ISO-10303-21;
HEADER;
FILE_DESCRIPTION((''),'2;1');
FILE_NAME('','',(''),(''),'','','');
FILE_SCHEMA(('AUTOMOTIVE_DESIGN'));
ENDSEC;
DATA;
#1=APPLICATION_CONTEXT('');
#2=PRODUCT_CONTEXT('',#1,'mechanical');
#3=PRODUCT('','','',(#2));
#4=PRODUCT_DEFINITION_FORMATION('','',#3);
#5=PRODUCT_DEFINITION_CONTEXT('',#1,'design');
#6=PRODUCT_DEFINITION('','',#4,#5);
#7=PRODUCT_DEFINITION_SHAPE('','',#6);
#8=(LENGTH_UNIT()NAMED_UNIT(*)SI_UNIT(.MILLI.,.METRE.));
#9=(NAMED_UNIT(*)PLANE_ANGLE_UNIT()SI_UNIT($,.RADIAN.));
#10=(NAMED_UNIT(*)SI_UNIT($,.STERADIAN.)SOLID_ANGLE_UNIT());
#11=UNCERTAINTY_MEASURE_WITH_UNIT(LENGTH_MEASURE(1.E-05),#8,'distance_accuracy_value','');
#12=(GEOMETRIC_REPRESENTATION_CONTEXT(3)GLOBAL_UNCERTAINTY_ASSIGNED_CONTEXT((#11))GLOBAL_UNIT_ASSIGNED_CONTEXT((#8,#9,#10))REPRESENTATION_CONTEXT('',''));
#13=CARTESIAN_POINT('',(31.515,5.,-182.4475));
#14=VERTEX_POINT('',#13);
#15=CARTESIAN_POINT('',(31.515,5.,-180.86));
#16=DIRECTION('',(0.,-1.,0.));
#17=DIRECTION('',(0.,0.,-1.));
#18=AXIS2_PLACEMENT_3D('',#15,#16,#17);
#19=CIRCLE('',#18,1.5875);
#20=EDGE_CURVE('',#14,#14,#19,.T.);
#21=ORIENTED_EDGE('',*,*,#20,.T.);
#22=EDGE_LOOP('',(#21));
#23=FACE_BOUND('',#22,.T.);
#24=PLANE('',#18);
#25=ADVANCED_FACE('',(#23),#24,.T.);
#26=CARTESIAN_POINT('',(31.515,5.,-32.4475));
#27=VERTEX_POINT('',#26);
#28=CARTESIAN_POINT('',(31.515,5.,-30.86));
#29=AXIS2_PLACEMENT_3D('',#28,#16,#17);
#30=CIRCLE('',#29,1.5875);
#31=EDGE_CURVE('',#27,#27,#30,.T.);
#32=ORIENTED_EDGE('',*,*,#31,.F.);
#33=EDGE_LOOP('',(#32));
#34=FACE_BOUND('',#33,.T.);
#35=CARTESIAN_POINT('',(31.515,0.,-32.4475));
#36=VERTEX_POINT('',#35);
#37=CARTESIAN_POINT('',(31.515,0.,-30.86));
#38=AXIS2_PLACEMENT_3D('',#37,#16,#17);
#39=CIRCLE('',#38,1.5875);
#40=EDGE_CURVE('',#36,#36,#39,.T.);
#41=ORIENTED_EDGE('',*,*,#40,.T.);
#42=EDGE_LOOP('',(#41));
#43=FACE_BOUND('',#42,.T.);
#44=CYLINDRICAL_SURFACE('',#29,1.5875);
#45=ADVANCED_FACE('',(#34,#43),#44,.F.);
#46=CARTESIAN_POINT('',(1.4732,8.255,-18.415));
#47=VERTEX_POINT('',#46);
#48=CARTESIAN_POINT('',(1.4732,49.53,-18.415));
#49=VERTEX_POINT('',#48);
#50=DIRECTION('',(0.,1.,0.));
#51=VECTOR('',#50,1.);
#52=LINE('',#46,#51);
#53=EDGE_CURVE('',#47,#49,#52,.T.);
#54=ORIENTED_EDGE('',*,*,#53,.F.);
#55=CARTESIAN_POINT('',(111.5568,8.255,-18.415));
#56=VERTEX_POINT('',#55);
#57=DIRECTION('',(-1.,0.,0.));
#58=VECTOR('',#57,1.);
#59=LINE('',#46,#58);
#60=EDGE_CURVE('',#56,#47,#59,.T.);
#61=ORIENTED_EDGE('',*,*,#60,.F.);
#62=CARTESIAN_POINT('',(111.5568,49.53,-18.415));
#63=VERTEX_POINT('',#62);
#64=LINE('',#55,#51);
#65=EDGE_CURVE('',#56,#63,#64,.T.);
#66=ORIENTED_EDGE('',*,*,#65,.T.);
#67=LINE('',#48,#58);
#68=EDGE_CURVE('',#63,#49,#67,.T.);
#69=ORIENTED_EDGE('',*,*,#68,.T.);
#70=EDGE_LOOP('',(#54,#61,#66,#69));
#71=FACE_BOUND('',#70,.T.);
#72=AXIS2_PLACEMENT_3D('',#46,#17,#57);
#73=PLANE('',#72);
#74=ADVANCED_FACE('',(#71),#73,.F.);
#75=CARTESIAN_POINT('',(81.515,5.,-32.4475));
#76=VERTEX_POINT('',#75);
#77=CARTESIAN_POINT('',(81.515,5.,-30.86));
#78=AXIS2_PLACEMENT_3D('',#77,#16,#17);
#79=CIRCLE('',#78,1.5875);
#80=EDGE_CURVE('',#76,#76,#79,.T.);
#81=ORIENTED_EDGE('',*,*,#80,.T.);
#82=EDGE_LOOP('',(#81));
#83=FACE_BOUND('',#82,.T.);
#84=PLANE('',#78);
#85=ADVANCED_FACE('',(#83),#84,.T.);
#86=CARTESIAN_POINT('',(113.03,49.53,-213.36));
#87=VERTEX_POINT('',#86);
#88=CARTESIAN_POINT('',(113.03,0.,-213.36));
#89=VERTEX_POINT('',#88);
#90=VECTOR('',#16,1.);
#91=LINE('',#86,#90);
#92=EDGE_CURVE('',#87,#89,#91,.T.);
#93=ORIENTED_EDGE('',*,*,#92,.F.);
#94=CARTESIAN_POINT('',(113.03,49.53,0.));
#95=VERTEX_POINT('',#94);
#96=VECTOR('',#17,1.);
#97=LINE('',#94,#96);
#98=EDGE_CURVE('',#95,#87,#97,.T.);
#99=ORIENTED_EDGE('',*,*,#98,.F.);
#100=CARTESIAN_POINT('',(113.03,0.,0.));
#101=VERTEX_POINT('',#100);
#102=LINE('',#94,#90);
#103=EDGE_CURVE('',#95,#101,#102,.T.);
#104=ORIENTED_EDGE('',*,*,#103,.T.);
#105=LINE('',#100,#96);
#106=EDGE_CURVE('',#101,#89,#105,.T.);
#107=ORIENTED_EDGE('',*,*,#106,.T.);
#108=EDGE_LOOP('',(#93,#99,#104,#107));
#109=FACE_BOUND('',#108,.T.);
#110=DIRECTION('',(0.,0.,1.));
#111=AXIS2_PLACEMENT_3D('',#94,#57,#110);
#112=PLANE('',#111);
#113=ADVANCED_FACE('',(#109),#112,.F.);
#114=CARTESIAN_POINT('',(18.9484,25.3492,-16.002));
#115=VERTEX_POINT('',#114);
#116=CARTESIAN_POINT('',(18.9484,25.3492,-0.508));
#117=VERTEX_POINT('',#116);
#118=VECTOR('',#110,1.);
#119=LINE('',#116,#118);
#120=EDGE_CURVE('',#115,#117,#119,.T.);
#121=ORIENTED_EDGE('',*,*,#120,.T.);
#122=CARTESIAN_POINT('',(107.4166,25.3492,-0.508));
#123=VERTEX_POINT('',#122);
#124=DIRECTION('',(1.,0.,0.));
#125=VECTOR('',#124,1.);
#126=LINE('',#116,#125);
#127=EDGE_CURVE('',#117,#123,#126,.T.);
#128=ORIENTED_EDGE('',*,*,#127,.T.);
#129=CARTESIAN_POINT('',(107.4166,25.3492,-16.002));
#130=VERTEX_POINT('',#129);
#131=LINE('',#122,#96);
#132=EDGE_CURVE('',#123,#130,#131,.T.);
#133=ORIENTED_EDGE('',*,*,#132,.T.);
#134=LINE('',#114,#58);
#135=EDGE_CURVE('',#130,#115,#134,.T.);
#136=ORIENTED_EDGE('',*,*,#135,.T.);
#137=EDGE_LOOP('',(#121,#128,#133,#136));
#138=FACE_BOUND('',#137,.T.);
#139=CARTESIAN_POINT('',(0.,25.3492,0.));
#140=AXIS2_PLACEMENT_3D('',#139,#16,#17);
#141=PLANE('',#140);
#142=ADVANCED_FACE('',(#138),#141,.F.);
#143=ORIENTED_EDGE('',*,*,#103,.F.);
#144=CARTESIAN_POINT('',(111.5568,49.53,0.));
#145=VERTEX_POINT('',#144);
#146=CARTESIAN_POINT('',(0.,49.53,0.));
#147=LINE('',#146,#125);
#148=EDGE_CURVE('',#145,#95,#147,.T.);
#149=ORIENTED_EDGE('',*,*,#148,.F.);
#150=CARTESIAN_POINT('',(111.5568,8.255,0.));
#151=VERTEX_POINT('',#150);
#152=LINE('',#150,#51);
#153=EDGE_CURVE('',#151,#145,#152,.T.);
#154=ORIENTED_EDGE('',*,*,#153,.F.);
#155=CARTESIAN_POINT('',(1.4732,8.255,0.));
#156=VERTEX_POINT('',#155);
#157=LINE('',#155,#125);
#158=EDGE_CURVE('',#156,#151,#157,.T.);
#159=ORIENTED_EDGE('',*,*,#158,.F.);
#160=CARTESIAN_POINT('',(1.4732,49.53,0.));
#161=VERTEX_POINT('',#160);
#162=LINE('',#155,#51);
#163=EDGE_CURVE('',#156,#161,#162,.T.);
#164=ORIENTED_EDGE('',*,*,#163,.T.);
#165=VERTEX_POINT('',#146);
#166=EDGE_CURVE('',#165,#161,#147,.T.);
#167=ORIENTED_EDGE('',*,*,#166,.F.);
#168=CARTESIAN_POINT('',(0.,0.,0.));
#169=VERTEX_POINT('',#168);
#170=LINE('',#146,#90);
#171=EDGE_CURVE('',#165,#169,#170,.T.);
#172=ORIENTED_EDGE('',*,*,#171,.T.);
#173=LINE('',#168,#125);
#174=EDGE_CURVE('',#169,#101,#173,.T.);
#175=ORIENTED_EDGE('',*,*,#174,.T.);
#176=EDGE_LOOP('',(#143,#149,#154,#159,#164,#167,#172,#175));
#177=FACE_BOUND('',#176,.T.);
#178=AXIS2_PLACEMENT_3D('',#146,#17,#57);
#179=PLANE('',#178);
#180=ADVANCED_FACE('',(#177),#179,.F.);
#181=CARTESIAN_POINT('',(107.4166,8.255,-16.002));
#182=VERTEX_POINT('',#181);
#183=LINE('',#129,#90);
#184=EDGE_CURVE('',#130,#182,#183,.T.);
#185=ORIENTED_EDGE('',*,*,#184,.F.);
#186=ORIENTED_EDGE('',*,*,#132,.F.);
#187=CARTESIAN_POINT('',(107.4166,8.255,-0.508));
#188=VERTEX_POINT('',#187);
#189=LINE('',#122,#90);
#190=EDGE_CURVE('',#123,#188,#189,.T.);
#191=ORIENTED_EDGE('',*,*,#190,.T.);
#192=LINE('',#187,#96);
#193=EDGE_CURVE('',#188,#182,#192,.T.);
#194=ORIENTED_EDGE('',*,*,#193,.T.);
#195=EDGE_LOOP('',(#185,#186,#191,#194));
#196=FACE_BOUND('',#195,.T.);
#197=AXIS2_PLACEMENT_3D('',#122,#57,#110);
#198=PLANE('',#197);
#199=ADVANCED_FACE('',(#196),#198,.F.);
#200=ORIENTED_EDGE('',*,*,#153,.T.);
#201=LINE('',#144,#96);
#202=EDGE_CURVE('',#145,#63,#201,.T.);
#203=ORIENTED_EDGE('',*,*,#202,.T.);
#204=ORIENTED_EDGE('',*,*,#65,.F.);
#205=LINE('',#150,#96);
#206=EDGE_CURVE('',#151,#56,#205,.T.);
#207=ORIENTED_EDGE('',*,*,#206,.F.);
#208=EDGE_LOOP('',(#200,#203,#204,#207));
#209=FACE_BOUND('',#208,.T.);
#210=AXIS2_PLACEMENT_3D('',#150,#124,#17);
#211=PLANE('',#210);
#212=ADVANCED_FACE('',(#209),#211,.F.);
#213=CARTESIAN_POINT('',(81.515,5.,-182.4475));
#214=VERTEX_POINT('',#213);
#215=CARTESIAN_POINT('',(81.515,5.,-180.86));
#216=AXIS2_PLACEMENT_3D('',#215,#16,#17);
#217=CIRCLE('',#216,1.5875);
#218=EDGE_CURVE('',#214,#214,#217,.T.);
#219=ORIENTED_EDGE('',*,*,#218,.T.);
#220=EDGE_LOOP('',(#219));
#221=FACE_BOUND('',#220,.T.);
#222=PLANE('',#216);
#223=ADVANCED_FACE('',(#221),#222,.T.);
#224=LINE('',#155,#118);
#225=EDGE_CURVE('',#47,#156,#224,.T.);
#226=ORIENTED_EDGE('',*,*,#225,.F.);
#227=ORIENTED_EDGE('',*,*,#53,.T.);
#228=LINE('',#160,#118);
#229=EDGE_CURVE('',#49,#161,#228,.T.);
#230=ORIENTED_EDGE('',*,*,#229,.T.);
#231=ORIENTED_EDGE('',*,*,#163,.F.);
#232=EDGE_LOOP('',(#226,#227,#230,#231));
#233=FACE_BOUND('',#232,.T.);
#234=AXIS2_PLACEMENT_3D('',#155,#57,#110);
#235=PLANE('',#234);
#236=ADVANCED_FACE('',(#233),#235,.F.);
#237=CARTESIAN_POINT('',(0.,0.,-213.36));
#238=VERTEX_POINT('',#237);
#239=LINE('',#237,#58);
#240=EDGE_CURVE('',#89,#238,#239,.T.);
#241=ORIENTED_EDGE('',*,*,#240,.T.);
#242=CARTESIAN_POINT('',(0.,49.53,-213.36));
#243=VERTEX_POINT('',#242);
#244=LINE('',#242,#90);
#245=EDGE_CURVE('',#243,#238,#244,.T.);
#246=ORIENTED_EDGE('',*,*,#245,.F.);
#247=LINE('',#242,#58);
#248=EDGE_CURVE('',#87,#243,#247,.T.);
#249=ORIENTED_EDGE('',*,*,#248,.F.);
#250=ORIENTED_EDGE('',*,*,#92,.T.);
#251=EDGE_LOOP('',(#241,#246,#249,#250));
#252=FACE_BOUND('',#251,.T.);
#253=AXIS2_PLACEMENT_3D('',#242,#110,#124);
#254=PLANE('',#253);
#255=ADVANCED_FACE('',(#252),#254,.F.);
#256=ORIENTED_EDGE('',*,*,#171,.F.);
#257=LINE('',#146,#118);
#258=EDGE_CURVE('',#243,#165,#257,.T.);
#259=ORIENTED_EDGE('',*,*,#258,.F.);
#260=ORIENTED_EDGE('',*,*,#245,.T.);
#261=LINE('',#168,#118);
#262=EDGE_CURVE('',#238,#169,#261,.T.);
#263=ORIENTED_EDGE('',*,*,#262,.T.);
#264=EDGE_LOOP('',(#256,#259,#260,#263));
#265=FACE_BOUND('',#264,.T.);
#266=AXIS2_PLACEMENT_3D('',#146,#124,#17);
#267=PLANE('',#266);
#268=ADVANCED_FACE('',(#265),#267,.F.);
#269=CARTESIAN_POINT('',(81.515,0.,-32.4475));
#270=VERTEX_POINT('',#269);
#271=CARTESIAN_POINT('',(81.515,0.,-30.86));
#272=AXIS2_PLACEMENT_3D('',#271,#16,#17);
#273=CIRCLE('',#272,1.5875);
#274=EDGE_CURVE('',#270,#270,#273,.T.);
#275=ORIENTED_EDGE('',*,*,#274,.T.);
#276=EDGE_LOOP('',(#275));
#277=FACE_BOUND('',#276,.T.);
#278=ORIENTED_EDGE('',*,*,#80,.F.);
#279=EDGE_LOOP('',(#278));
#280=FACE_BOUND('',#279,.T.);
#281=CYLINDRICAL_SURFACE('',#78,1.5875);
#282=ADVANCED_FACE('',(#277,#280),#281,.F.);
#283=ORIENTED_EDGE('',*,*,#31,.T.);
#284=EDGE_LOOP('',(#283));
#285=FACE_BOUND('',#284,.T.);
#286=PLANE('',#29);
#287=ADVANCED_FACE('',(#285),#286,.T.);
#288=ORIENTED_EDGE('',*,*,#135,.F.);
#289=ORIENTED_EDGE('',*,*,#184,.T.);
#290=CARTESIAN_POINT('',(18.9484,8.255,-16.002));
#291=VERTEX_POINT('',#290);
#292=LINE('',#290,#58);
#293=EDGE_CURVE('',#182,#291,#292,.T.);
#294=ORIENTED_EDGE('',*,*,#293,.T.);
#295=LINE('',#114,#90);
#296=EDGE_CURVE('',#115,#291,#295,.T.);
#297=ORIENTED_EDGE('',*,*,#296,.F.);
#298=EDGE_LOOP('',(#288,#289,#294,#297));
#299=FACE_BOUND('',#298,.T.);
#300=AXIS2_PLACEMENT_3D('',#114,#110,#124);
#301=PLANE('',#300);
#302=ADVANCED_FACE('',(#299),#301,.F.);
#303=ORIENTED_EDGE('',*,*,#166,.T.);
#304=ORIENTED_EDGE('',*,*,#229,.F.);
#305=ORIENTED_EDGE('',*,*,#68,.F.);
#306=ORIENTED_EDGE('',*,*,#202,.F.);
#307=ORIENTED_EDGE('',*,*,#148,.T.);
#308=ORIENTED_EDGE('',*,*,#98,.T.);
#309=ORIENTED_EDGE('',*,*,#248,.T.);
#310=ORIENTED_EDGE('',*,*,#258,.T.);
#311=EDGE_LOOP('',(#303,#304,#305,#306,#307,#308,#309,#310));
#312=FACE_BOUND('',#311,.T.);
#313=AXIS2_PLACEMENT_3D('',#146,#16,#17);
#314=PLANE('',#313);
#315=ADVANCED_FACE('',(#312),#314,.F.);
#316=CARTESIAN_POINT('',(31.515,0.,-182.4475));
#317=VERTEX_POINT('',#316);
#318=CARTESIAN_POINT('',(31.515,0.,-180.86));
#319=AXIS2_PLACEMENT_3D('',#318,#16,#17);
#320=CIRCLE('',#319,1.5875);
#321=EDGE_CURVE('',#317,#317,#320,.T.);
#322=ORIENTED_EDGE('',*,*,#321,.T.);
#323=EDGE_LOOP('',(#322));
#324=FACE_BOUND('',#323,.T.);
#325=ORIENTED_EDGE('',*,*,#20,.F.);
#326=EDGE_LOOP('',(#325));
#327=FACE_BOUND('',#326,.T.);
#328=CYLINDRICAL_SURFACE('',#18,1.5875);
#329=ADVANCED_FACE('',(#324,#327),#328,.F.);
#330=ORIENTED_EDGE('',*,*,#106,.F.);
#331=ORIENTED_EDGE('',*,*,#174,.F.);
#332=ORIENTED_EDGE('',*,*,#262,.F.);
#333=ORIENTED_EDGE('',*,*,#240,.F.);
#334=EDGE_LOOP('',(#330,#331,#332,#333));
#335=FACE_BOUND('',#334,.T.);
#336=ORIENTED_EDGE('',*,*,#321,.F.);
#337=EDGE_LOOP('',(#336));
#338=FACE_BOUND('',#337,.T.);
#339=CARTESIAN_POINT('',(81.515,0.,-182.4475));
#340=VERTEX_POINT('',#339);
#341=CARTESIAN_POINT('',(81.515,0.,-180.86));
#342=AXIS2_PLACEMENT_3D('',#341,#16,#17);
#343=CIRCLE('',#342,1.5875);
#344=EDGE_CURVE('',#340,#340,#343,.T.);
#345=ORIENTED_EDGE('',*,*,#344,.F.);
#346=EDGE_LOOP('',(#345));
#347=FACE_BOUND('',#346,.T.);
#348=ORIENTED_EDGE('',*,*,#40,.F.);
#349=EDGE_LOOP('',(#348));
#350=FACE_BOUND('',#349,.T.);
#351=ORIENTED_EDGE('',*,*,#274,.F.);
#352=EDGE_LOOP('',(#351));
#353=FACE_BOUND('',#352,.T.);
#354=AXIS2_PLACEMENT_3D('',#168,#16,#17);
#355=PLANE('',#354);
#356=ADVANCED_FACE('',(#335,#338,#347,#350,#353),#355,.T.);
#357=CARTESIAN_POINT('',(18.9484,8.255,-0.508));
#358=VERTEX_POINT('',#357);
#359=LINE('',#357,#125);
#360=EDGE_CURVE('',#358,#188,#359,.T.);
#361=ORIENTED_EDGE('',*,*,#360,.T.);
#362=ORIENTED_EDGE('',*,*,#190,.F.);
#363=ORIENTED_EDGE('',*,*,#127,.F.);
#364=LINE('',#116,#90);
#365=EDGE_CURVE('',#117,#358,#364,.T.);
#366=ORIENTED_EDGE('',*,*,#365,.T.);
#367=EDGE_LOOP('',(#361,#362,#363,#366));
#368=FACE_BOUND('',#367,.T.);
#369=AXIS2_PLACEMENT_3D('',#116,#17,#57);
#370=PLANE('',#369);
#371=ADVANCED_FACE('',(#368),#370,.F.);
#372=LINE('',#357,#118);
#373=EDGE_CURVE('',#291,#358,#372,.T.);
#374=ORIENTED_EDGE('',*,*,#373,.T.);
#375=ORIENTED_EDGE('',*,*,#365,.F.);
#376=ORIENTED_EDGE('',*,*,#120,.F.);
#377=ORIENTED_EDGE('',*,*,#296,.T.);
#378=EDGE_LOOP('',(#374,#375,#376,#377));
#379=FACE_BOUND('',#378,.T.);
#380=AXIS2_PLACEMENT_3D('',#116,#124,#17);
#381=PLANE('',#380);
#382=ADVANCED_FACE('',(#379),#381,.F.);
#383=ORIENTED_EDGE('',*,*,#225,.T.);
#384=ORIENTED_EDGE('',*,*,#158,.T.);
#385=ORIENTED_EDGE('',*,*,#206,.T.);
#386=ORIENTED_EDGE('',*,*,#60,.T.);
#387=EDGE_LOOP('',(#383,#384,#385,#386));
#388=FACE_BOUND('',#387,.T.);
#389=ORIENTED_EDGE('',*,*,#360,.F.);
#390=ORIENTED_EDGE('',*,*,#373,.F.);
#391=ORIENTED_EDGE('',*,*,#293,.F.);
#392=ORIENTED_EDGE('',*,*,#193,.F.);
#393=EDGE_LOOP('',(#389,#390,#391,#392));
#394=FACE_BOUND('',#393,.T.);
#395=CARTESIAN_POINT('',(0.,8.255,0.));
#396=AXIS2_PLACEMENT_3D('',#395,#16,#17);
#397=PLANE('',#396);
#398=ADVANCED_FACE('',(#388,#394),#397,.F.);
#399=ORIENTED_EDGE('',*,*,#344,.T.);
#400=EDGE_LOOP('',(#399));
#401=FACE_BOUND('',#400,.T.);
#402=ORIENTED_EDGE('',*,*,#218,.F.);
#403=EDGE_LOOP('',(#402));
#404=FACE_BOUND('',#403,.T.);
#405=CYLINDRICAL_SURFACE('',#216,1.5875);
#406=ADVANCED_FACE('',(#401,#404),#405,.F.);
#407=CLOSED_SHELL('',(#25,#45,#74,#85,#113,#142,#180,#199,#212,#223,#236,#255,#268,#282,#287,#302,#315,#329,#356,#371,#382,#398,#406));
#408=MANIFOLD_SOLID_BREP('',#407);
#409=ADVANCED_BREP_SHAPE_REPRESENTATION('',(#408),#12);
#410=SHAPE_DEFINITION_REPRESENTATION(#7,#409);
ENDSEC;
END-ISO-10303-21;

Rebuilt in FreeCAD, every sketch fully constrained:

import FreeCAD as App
import Part
import Sketcher
Q = App.Units.Quantity


def add_polygon(sketch, points):
    """Adds a closed chain of lines whose ends are joined by coincident constraints."""
    first, n = sketch.GeometryCount, len(points)
    for a, b in zip(points, points[1:] + points[:1]):
        sketch.addGeometry(Part.LineSegment(App.Vector(*a, 0), App.Vector(*b, 0)), False)
    for i in range(n):
        sketch.addConstraint(Sketcher.Constraint("Coincident", first + i, 2, first + (i + 1) % n, 1))

doc = App.newDocument("Part")
body = doc.addObject("PartDesign::Body", "Body")

sketch1 = body.newObject("Sketcher::SketchObject", "Sketch")
sketch1.AttachmentSupport = (doc.getObject("XZ_Plane"), [""])
sketch1.MapMode = "FlatFace"
add_polygon(sketch1, [(0, -213.36), (0, 0), (113.03, 0), (113.03, -213.36)])
sketch1.addConstraint(Sketcher.Constraint("Vertical", 0))
sketch1.addConstraint(Sketcher.Constraint("Horizontal", 1))
sketch1.addConstraint(Sketcher.Constraint("Vertical", 2))
sketch1.addConstraint(Sketcher.Constraint("Horizontal", 3))
sketch1.addConstraint(Sketcher.Constraint("Coincident", 0, 2, -1, 1))
sketch1.addConstraint(Sketcher.Constraint("DistanceY", 0, 1, 0, 2, Q("8.4 in")))
sketch1.addConstraint(Sketcher.Constraint("DistanceX", 1, 1, 1, 2, Q("4.45 in")))
pad1 = body.newObject("PartDesign::Pad", "Pad")
pad1.Profile = sketch1
pad1.Length = Q("1.95 in")
pad1.Reversed = True

sketch2 = body.newObject("Sketcher::SketchObject", "Sketch001")
sketch2.AttachmentSupport = (doc.getObject("XZ_Plane"), [""])
sketch2.MapMode = "FlatFace"
sketch2.AttachmentOffset = App.Placement(App.Vector(0, 0, -1.95 * 25.4), App.Rotation())
add_polygon(sketch2, [(1.4732, -18.415), (1.4732, 0), (111.5568, 0), (111.5568, -18.415)])
sketch2.addConstraint(Sketcher.Constraint("Vertical", 0))
sketch2.addConstraint(Sketcher.Constraint("Horizontal", 1))
sketch2.addConstraint(Sketcher.Constraint("Vertical", 2))
sketch2.addConstraint(Sketcher.Constraint("Horizontal", 3))
sketch2.addConstraint(Sketcher.Constraint("PointOnObject", 0, 2, -1))
sketch2.addConstraint(Sketcher.Constraint("DistanceX", 1, 1, 1, 2, Q("4.334 in")))
sketch2.addConstraint(Sketcher.Constraint("DistanceY", 0, 1, 0, 2, Q("0.725 in")))
sketch2.addConstraint(Sketcher.Constraint("DistanceX", -1, 1, 0, 2, Q("0.058 in")))
pocket1 = body.newObject("PartDesign::Pocket", "Pocket")
pocket1.Profile = sketch2
pocket1.Length = Q("1.625 in")
pocket1.Reversed = True

sketch3 = body.newObject("Sketcher::SketchObject", "Sketch002")
sketch3.AttachmentSupport = (doc.getObject("XZ_Plane"), [""])
sketch3.MapMode = "FlatFace"
sketch3.AttachmentOffset = App.Placement(App.Vector(0, 0, -0.325 * 25.4), App.Rotation())
add_polygon(sketch3, [(18.9484, -16.002), (18.9484, -0.508), (107.4166, -0.508), (107.4166, -16.002)])
sketch3.addConstraint(Sketcher.Constraint("Vertical", 0))
sketch3.addConstraint(Sketcher.Constraint("Horizontal", 1))
sketch3.addConstraint(Sketcher.Constraint("Vertical", 2))
sketch3.addConstraint(Sketcher.Constraint("Horizontal", 3))
sketch3.addConstraint(Sketcher.Constraint("DistanceY", 0, 1, 0, 2, Q("0.61 in")))
sketch3.addConstraint(Sketcher.Constraint("DistanceX", 1, 1, 1, 2, Q("3.483 in")))
sketch3.addConstraint(Sketcher.Constraint("DistanceY", 0, 2, -1, 1, Q("0.02 in")))
sketch3.addConstraint(Sketcher.Constraint("DistanceX", -1, 1, 0, 2, Q("0.746 in")))
pad2 = body.newObject("PartDesign::Pad", "Pad001")
pad2.Profile = sketch3
pad2.Length = Q("0.673 in")
pad2.Reversed = True

sketch4 = body.newObject("Sketcher::SketchObject", "Sketch003")
sketch4.AttachmentSupport = (doc.getObject("XZ_Plane"), [""])
sketch4.MapMode = "FlatFace"
sketch4.addGeometry(Part.Circle(App.Vector(81.515, -180.86, 0), App.Vector(0, 0, 1), 1.5875), False)
sketch4.addGeometry(Part.Circle(App.Vector(31.515, -180.86, 0), App.Vector(0, 0, 1), 1.5875), False)
sketch4.addGeometry(Part.Circle(App.Vector(81.515, -30.86, 0), App.Vector(0, 0, 1), 1.5875), False)
sketch4.addGeometry(Part.Circle(App.Vector(31.515, -30.86, 0), App.Vector(0, 0, 1), 1.5875), False)
sketch4.addConstraint(Sketcher.Constraint("Equal", 0, 1))
sketch4.addConstraint(Sketcher.Constraint("Equal", 1, 2))
sketch4.addConstraint(Sketcher.Constraint("Equal", 2, 3))
sketch4.addConstraint(Sketcher.Constraint("Horizontal", 0, 3, 1, 3))
sketch4.addConstraint(Sketcher.Constraint("Horizontal", 2, 3, 3, 3))
sketch4.addConstraint(Sketcher.Constraint("Vertical", 0, 3, 2, 3))
sketch4.addConstraint(Sketcher.Constraint("Vertical", 1, 3, 3, 3))
sketch4.addConstraint(Sketcher.Constraint("Diameter", 0, Q("0.125 in")))
sketch4.addConstraint(Sketcher.Constraint("DistanceX", -1, 1, 0, 3, 81.515))
sketch4.addConstraint(Sketcher.Constraint("DistanceY", 0, 3, -1, 1, 180.86))
sketch4.addConstraint(Sketcher.Constraint("DistanceX", -1, 1, 1, 3, 31.515))
sketch4.addConstraint(Sketcher.Constraint("DistanceY", 2, 3, -1, 1, 30.86))
pocket2 = body.newObject("PartDesign::Pocket", "Pocket001")
pocket2.Profile = sketch4
pocket2.Length = 5

doc.recompute()
